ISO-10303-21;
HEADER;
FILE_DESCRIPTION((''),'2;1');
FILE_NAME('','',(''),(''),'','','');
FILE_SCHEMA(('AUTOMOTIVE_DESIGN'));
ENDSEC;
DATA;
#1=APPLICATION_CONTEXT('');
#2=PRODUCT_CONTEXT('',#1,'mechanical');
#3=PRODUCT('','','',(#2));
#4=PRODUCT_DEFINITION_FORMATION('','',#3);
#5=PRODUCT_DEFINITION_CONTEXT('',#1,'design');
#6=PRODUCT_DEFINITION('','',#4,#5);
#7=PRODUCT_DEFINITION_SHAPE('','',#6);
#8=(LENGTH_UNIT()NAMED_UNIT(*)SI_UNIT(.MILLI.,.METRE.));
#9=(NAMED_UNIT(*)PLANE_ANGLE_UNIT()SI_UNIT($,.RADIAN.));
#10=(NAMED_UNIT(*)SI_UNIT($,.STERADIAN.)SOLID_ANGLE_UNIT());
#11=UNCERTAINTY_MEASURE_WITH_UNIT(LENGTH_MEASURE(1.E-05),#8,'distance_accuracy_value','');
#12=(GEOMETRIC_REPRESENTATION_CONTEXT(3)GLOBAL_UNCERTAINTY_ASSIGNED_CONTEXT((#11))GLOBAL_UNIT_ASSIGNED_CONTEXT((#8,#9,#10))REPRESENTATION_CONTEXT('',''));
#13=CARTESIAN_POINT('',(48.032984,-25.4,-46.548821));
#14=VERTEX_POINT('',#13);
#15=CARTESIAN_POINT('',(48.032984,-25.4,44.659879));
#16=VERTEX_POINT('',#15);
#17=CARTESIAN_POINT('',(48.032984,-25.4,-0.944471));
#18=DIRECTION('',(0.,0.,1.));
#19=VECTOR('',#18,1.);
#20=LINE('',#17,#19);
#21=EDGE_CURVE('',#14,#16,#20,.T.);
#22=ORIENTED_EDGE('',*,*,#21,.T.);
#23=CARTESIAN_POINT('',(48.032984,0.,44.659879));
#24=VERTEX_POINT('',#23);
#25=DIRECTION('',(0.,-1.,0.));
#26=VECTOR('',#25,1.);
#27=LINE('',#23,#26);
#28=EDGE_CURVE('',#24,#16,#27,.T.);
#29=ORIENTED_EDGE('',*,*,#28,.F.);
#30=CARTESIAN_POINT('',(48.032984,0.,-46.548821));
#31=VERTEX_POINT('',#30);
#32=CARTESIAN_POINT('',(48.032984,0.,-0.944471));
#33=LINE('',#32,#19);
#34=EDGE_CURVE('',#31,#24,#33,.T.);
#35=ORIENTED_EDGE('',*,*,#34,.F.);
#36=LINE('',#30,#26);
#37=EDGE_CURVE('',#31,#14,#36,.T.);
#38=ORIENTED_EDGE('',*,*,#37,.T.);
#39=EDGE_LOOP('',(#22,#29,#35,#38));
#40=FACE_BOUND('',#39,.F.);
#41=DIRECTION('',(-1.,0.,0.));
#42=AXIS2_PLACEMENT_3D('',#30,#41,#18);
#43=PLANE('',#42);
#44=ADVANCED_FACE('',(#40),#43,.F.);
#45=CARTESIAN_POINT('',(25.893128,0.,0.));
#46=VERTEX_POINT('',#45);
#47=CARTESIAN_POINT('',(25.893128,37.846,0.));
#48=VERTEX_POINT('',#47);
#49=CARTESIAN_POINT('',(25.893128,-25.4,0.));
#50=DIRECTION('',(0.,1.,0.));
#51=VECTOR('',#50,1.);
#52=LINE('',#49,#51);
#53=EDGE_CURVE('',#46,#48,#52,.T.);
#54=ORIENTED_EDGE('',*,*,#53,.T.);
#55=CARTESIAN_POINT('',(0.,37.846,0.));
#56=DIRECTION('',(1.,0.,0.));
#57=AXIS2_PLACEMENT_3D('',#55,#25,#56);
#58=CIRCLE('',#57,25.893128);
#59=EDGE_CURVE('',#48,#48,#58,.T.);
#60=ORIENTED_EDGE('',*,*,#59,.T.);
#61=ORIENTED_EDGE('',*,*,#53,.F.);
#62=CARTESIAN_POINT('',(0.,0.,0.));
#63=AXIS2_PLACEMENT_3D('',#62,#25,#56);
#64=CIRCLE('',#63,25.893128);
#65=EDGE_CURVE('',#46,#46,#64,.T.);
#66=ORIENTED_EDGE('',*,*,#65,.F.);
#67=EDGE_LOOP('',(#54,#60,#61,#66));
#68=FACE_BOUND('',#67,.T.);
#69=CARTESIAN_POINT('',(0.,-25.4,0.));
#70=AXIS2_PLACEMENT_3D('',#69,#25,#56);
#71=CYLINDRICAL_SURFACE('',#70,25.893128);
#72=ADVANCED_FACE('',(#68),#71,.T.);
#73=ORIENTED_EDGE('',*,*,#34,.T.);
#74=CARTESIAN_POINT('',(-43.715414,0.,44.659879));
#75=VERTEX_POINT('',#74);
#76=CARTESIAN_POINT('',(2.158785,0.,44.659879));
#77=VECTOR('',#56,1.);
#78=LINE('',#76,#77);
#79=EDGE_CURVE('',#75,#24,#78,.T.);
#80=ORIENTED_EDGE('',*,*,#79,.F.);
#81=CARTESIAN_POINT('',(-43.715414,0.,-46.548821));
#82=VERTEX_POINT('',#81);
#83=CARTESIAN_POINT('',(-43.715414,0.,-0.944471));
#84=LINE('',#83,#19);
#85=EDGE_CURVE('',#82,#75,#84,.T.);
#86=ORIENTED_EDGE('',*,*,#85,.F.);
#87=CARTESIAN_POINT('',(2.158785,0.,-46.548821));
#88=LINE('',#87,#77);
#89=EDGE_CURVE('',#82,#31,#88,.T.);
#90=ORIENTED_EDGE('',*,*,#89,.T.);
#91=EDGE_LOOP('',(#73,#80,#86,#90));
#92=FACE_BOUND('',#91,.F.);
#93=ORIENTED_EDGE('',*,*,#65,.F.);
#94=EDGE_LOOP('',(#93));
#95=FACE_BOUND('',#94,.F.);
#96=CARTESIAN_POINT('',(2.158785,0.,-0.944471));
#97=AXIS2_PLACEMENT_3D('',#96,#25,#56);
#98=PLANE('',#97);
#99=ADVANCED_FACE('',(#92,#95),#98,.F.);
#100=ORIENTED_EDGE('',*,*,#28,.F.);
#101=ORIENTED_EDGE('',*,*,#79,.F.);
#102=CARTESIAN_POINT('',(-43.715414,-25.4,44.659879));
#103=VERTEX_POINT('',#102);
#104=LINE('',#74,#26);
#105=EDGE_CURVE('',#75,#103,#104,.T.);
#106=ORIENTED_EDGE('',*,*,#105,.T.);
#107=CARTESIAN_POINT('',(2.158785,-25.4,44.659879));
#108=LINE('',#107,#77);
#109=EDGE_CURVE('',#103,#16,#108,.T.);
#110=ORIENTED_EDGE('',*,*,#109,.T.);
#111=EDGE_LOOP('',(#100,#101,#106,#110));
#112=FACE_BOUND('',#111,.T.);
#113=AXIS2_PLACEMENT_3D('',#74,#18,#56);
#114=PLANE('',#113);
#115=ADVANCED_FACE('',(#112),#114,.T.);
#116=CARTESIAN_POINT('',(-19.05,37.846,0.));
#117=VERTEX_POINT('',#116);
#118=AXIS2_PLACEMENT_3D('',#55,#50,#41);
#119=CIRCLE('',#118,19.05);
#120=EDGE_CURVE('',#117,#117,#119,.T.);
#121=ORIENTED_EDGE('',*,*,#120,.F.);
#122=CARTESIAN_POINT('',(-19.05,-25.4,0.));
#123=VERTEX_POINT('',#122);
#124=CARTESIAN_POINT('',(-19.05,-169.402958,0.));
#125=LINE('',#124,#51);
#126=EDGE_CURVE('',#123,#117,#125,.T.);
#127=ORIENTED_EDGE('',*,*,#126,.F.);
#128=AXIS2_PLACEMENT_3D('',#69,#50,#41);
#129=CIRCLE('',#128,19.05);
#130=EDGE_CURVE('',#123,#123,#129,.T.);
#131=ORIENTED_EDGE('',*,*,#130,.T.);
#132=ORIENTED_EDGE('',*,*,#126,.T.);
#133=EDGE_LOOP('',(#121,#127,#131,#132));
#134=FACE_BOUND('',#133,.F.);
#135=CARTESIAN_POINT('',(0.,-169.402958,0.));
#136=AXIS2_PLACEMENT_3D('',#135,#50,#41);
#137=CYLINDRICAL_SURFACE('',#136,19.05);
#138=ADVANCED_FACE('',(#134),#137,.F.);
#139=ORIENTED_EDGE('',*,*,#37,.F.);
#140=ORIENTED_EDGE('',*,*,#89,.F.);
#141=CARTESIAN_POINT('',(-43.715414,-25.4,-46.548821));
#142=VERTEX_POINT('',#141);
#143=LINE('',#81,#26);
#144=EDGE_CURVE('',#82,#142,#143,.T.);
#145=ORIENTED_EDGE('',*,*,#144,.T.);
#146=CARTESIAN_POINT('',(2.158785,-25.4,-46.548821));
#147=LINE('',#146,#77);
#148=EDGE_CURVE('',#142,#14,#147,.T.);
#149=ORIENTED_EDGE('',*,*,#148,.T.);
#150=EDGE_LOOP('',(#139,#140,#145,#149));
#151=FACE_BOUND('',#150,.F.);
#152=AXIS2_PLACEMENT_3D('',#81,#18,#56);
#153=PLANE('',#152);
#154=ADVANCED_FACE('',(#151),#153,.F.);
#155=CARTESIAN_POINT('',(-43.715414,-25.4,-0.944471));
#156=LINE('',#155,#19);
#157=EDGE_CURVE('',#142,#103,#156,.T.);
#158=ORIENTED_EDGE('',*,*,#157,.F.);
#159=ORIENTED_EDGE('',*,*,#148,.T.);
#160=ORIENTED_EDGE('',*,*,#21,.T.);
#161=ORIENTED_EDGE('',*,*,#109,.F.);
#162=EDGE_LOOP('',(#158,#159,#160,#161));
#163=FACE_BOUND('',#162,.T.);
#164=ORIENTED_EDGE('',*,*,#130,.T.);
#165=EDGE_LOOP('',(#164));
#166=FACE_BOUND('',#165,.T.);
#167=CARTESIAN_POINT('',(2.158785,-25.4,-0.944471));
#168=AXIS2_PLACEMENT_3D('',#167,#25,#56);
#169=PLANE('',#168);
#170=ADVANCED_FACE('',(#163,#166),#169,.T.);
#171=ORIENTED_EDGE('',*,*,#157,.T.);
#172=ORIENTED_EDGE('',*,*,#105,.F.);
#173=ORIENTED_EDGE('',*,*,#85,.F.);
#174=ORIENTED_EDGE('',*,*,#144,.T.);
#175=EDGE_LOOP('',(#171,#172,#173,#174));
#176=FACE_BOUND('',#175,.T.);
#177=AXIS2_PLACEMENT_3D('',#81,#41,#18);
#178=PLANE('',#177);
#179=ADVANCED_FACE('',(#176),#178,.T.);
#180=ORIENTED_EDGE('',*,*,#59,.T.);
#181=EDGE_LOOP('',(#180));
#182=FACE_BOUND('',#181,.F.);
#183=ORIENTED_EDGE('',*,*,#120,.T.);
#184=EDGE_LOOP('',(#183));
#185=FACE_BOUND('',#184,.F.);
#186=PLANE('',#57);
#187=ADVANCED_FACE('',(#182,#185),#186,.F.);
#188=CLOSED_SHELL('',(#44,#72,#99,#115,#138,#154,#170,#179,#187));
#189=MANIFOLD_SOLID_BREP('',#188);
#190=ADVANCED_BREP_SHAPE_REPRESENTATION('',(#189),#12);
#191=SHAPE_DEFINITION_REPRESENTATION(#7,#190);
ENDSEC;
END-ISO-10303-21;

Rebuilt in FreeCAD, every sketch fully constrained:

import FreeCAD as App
import Part
import Sketcher
Q = App.Units.Quantity


def add_polygon(sketch, points):
    """Adds a closed chain of lines whose ends are joined by coincident constraints."""
    first, n = sketch.GeometryCount, len(points)
    for a, b in zip(points, points[1:] + points[:1]):
        sketch.addGeometry(Part.LineSegment(App.Vector(*a, 0), App.Vector(*b, 0)), False)
    for i in range(n):
        sketch.addConstraint(Sketcher.Constraint("Coincident", first + i, 2, first + (i + 1) % n, 1))

doc = App.newDocument("Part")
params = doc.addObject("Spreadsheet::Sheet", "Params")
for row, (alias, value) in enumerate([
    ("pad1_length", "1 in"),
    ("sketch2_diameter", "2 in"),
    ("hole_diameter", "2 in"),
    ("pad2_length", "2.49 in"),
    ("sketch4_diameter", "1.5 in"),
    ("hole2_diameter", "1.5 in"),
], start=1):
    params.set(f"A{row}", alias)
    params.set(f"B{row}", "=" + value)
    params.setAlias(f"B{row}", alias)

body = doc.addObject("PartDesign::Body", "Body")

# Sketch on XZ plane
sketch1 = doc.addObject("Sketcher::SketchObject", "Sketch")
body.addObject(sketch1)
sketch1.AttachmentSupport = (doc.XZ_Plane, [""])
sketch1.MapMode = "FlatFace"
add_polygon(sketch1, [(-43.715414, 44.659879), (-43.715414, -46.548821), (48.032984, -46.548821), (48.032984, 44.659879)])  # lines 0-3
sketch1.addConstraint([
    Sketcher.Constraint("Vertical", 0),
    Sketcher.Constraint("Horizontal", 1),
    Sketcher.Constraint("Vertical", 2),
    Sketcher.Constraint("Horizontal", 3),
    Sketcher.Constraint("DistanceX", 1, 1, 1, 2, Q("91.748398 mm")),
    Sketcher.Constraint("DistanceY", 0, 2, 0, 1, Q("91.2087 mm")),
    Sketcher.Constraint("DistanceY", 0, 2, -1, 1, Q("46.548821 mm")),
    Sketcher.Constraint("DistanceX", 0, 2, -1, 1, Q("43.715414 mm")),
])
pad1 = doc.addObject("PartDesign::Pad", "Pad")
body.addObject(pad1)
pad1.Profile = sketch1
pad1.setExpression("Length", "Params.pad1_length")

# Sketch on XZ plane
sketch2 = doc.addObject("Sketcher::SketchObject", "Sketch001")
body.addObject(sketch2)
sketch2.AttachmentSupport = (doc.XZ_Plane, [""])
sketch2.MapMode = "FlatFace"
sketch2.AttachmentOffset = App.Placement(App.Vector(0, 0, 1 * 25.4), App.Rotation())
sketch2.addGeometry(Part.Circle(App.Vector(0, 0, 0), App.Vector(0, 0, 1), 25.4), False)
sketch2.addConstraint([
    Sketcher.Constraint("Coincident", 0, 3, -1, 1),
    Sketcher.Constraint("Diameter", 0, Q("2 in")),
])
sketch2.setExpression("Constraints[1]", "Params.sketch2_diameter")
doc.recompute()
hole = doc.addObject("PartDesign::Hole", "Hole")
body.addObject(hole)
hole.Profile = sketch2
hole.ThreadType = "None"
hole.setExpression("Diameter", "Params.hole_diameter")
hole.DepthType = "ThroughAll"

# Sketch on XZ plane
sketch3 = doc.addObject("Sketcher::SketchObject", "Sketch002")
body.addObject(sketch3)
sketch3.AttachmentSupport = (doc.XZ_Plane, [""])
sketch3.MapMode = "FlatFace"
sketch3.AttachmentOffset = App.Placement(App.Vector(0, 0, 1 * 25.4), App.Rotation())
sketch3.addGeometry(Part.Circle(App.Vector(0, 0, 0), App.Vector(0, 0, 1), 25.893128), False)
sketch3.addConstraint([
    Sketcher.Constraint("Coincident", 0, 3, -1, 1),
    Sketcher.Constraint("Diameter", 0, Q("51.786256 mm")),
])
pad2 = doc.addObject("PartDesign::Pad", "Pad001")
body.addObject(pad2)
pad2.Profile = sketch3
pad2.setExpression("Length", "Params.pad2_length")
pad2.Reversed = True

# Sketch on XZ plane
sketch4 = doc.addObject("Sketcher::SketchObject", "Sketch003")
body.addObject(sketch4)
sketch4.AttachmentSupport = (doc.XZ_Plane, [""])
sketch4.MapMode = "FlatFace"
sketch4.AttachmentOffset = App.Placement(App.Vector(0, 0, 1 * 25.4), App.Rotation())
sketch4.addGeometry(Part.Circle(App.Vector(0, 0, 0), App.Vector(0, 0, 1), 19.05), False)
sketch4.addConstraint([
    Sketcher.Constraint("Coincident", 0, 3, -1, 1),
    Sketcher.Constraint("Diameter", 0, Q("1.5 in")),
])
sketch4.setExpression("Constraints[1]", "Params.sketch4_diameter")
doc.recompute()
hole2 = doc.addObject("PartDesign::Hole", "Hole001")
body.addObject(hole2)
hole2.Profile = sketch4
hole2.ThreadType = "None"
hole2.setExpression("Diameter", "Params.hole2_diameter")
hole2.DepthType = "ThroughAll"

doc.recompute()
